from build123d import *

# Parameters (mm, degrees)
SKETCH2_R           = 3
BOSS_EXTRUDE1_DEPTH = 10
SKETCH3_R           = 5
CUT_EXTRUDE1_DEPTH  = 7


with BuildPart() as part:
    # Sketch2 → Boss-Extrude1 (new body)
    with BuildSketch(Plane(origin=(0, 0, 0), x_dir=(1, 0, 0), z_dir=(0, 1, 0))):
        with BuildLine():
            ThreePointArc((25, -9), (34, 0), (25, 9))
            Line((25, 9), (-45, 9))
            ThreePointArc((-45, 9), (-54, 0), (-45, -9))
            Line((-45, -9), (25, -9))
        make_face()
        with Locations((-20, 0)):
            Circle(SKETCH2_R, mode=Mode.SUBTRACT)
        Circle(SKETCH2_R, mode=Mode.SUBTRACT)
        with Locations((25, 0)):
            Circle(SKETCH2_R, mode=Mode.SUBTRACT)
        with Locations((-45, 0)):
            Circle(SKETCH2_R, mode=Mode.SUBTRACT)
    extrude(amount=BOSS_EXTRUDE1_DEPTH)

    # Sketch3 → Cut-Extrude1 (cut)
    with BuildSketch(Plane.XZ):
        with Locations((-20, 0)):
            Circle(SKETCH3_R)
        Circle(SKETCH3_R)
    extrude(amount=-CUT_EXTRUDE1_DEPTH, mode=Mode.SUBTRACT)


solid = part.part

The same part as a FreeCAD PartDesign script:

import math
import FreeCAD as App
import Part
import Sketcher
from FreeCAD import Vector
Q = App.Units.Quantity

doc = App.newDocument("Part")
body = doc.addObject("PartDesign::Body", "Body")

sketch1 = body.newObject("Sketcher::SketchObject", "Sketch")
sketch1.AttachmentSupport = (doc.getObject("XZ_Plane"), [""])
sketch1.MapMode = "FlatFace"
sketch1.addGeometry(Part.ArcOfCircle(Part.Circle(Vector(25, 0, 0), Vector(0, 0, 1), 9), math.radians(-90), math.radians(90)), False)
sketch1.addGeometry(Part.LineSegment(Vector(25, -9, 0), Vector(-45, -9, 0)), False)
sketch1.addGeometry(Part.ArcOfCircle(Part.Circle(Vector(-45, 0, 0), Vector(0, 0, 1), 9), math.radians(90), math.radians(270)), False)
sketch1.addGeometry(Part.LineSegment(Vector(-45, 9, 0), Vector(25, 9, 0)), False)
sketch1.addGeometry(Part.Circle(Vector(-45, 0, 0), Vector(0, 0, 1), 3), False)
sketch1.addGeometry(Part.Circle(Vector(-20, 0, 0), Vector(0, 0, 1), 3), False)
sketch1.addGeometry(Part.Circle(Vector(0, 0, 0), Vector(0, 0, 1), 3), False)
sketch1.addGeometry(Part.Circle(Vector(25, 0, 0), Vector(0, 0, 1), 3), False)
sketch1.addConstraint(Sketcher.Constraint("Tangent", 0, 1, 1, 1))
sketch1.addConstraint(Sketcher.Constraint("Tangent", 1, 2, 2, 2))
sketch1.addConstraint(Sketcher.Constraint("Tangent", 2, 1, 3, 1))
sketch1.addConstraint(Sketcher.Constraint("Tangent", 3, 2, 0, 2))
sketch1.addConstraint(Sketcher.Constraint("Horizontal", 1))
sketch1.addConstraint(Sketcher.Constraint("Horizontal", 3))
sketch1.addConstraint(Sketcher.Constraint("Coincident", 6, 3, -1, 1))
sketch1.addConstraint(Sketcher.Constraint("Coincident", 4, 3, 2, 3))
sketch1.addConstraint(Sketcher.Constraint("Coincident", 7, 3, 0, 3))
sketch1.addConstraint(Sketcher.Constraint("Equal", 4, 5))
sketch1.addConstraint(Sketcher.Constraint("Equal", 5, 6))
sketch1.addConstraint(Sketcher.Constraint("Equal", 6, 7))
sketch1.addConstraint(Sketcher.Constraint("PointOnObject", 0, 3, -1))
sketch1.addConstraint(Sketcher.Constraint("PointOnObject", 5, 3, -1))
sketch1.addConstraint(Sketcher.Constraint("Diameter", 4, Q("6 mm")))
sketch1.addConstraint(Sketcher.Constraint("Radius", 0, Q("9 mm")))
sketch1.addConstraint(Sketcher.Constraint("DistanceX", 1, 2, 1, 1, Q("70 mm")))
sketch1.addConstraint(Sketcher.Constraint("DistanceX", -1, 1, 0, 3, Q("25 mm")))
sketch1.addConstraint(Sketcher.Constraint("DistanceX", 5, 3, -1, 1, Q("20 mm")))
pad1 = body.newObject("PartDesign::Pad", "Pad")
pad1.Profile = sketch1
pad1.Length = 10
pad1.Reversed = True

sketch2 = body.newObject("Sketcher::SketchObject", "Sketch001")
sketch2.AttachmentSupport = (doc.getObject("XZ_Plane"), [""])
sketch2.MapMode = "FlatFace"
sketch2.addGeometry(Part.Circle(Vector(-20, 0, 0), Vector(0, 0, 1), 5), False)
sketch2.addGeometry(Part.Circle(Vector(0, 0, 0), Vector(0, 0, 1), 5), False)
sketch2.addConstraint(Sketcher.Constraint("Coincident", 1, 3, -1, 1))
sketch2.addConstraint(Sketcher.Constraint("Equal", 0, 1))
sketch2.addConstraint(Sketcher.Constraint("PointOnObject", 0, 3, -1))
sketch2.addConstraint(Sketcher.Constraint("Diameter", 0, Q("10 mm")))
sketch2.addConstraint(Sketcher.Constraint("DistanceX", 0, 3, -1, 1, Q("20 mm")))
pocket1 = body.newObject("PartDesign::Pocket", "Pocket")
pocket1.Profile = sketch2
pocket1.Length = 7

doc.recompute()
